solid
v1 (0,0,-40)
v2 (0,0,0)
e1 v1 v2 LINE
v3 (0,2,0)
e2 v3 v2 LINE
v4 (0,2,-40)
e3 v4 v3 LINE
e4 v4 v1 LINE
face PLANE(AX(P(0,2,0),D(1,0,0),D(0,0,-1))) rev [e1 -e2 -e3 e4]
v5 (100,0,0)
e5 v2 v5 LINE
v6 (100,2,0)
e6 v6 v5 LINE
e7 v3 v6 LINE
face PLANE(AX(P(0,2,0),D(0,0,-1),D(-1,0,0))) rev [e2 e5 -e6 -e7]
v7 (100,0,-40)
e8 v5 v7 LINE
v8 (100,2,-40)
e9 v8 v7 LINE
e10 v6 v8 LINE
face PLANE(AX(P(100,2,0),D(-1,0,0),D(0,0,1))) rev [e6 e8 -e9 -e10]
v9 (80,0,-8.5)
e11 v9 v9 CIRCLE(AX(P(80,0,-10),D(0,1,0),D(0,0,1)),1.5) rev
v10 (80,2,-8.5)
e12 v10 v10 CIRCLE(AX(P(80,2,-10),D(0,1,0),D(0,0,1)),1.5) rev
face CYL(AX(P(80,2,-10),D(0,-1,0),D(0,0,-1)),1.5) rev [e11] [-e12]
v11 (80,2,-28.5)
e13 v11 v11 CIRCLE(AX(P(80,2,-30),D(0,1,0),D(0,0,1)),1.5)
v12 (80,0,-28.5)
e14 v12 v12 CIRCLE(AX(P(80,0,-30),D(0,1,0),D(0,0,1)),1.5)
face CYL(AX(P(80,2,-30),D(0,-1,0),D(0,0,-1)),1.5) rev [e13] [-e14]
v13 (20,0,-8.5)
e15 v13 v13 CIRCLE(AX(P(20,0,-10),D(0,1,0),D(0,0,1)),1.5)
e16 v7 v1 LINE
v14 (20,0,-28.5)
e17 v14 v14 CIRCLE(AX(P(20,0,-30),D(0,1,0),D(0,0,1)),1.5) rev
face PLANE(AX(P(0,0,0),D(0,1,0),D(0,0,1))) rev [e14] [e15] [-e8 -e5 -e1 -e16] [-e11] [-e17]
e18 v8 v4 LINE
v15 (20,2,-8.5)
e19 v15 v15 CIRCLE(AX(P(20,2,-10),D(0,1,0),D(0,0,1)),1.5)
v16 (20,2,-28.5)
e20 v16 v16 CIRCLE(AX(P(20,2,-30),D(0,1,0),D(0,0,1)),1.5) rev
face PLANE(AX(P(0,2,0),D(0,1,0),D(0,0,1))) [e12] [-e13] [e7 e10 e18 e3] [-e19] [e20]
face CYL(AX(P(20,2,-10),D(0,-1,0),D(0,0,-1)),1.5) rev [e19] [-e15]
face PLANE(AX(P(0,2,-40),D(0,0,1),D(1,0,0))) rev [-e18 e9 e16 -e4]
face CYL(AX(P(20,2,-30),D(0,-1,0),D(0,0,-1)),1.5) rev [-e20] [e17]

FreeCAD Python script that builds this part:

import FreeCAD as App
import Part
import Sketcher

V = App.Vector


def add_polygon(sketch, points):
    """Adds a closed chain of lines whose ends are joined by coincident constraints."""
    first, n = sketch.GeometryCount, len(points)
    for a, b in zip(points, points[1:] + points[:1]):
        sketch.addGeometry(Part.LineSegment(App.Vector(*a, 0), App.Vector(*b, 0)), False)
    for i in range(n):
        sketch.addConstraint(Sketcher.Constraint("Coincident", first + i, 2, first + (i + 1) % n, 1))

doc = App.newDocument("Part")
body = doc.addObject("PartDesign::Body", "Body")

sketch1 = body.newObject("Sketcher::SketchObject", "Sketch")
sketch1.AttachmentSupport = (doc.getObject("XZ_Plane"), [""])
sketch1.MapMode = "FlatFace"
add_polygon(sketch1, [(0, -40), (0, 0), (100, 0), (100, -40)])
sketch1.addGeometry(Part.Circle(V(20, -10, 0), V(0, 0, 1), 1.5), False)
sketch1.addGeometry(Part.Circle(V(80, -10, 0), V(0, 0, 1), 1.5), False)
sketch1.addGeometry(Part.Circle(V(20, -30, 0), V(0, 0, 1), 1.5), False)
sketch1.addGeometry(Part.Circle(V(80, -30, 0), V(0, 0, 1), 1.5), False)
sketch1.addConstraint(Sketcher.Constraint("Vertical", 0))
sketch1.addConstraint(Sketcher.Constraint("Horizontal", 1))
sketch1.addConstraint(Sketcher.Constraint("Vertical", 2))
sketch1.addConstraint(Sketcher.Constraint("Horizontal", 3))
sketch1.addConstraint(Sketcher.Constraint("Coincident", 0, 2, -1, 1))
sketch1.addConstraint(Sketcher.Constraint("Equal", 4, 5))
sketch1.addConstraint(Sketcher.Constraint("Equal", 5, 6))
sketch1.addConstraint(Sketcher.Constraint("Equal", 6, 7))
sketch1.addConstraint(Sketcher.Constraint("Horizontal", 4, 3, 5, 3))
sketch1.addConstraint(Sketcher.Constraint("Horizontal", 6, 3, 7, 3))
sketch1.addConstraint(Sketcher.Constraint("Vertical", 4, 3, 6, 3))
sketch1.addConstraint(Sketcher.Constraint("Vertical", 5, 3, 7, 3))
sketch1.addConstraint(Sketcher.Constraint("Diameter", 4, 3.0))
sketch1.addConstraint(Sketcher.Constraint("DistanceX", 1, 1, 1, 2, 100.0))
sketch1.addConstraint(Sketcher.Constraint("DistanceY", 0, 1, 0, 2, 40.0))
sketch1.addConstraint(Sketcher.Constraint("DistanceX", -1, 1, 4, 3, 20.0))
sketch1.addConstraint(Sketcher.Constraint("DistanceY", 4, 3, -1, 1, 10.0))
sketch1.addConstraint(Sketcher.Constraint("DistanceX", -1, 1, 5, 3, 80.0))
sketch1.addConstraint(Sketcher.Constraint("DistanceY", 6, 3, -1, 1, 30.0))
pad1 = body.newObject("PartDesign::Pad", "Pad")
pad1.Profile = sketch1
pad1.Length = 2
pad1.Reversed = True

doc.recompute()
